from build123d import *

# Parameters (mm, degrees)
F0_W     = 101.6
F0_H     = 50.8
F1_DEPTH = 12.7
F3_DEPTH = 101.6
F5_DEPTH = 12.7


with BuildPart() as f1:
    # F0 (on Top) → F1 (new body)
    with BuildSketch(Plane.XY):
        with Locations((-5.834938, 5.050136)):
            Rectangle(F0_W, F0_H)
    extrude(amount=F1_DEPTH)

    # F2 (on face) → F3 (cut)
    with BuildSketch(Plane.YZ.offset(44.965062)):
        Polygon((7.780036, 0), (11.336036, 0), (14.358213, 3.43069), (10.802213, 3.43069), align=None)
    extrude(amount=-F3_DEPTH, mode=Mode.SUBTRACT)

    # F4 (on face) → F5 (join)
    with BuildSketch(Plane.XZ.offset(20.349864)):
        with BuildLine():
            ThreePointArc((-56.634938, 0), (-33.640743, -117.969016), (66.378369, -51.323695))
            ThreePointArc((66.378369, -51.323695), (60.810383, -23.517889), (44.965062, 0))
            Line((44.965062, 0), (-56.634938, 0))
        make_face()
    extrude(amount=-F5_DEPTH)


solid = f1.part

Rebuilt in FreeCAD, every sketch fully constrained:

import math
import FreeCAD as App
import Part
import Sketcher
Q = App.Units.Quantity

doc = App.newDocument("Part")
body = doc.addObject("PartDesign::Body", "Body")

# Sketch on XY plane
sketch1 = doc.addObject("Sketcher::SketchObject", "Sketch")
body.addObject(sketch1)
sketch1.AttachmentSupport = (doc.XY_Plane, [""])
sketch1.MapMode = "FlatFace"
sketch1.addGeometry([
    Part.LineSegment(App.Vector(-57, 30, 0), App.Vector(-57, -20, 0)),
    Part.LineSegment(App.Vector(-57, -20, 0), App.Vector(45, -20, 0)),
    Part.LineSegment(App.Vector(45, -20, 0), App.Vector(45, 30, 0)),
    Part.LineSegment(App.Vector(45, 30, 0), App.Vector(-57, 30, 0)),
], False)
sketch1.addConstraint([
    Sketcher.Constraint("Coincident", 0, 2, 1, 1),
    Sketcher.Constraint("Coincident", 1, 2, 2, 1),
    Sketcher.Constraint("Coincident", 2, 2, 3, 1),
    Sketcher.Constraint("Coincident", 3, 2, 0, 1),
    Sketcher.Constraint("Vertical", 0),
    Sketcher.Constraint("Horizontal", 1),
    Sketcher.Constraint("Vertical", 2),
    Sketcher.Constraint("Horizontal", 3),
    Sketcher.Constraint("DistanceX", 1, 1, 1, 2, Q("4 in")),
    Sketcher.Constraint("DistanceY", 0, 2, 0, 1, Q("2 in")),
    Sketcher.Constraint("DistanceX", 0, 2, -1, 1, 56.634938),
    Sketcher.Constraint("DistanceY", 0, 2, -1, 1, 20.349864),
])
pad1 = doc.addObject("PartDesign::Pad", "Pad")
body.addObject(pad1)
pad1.Profile = sketch1
pad1.Length = Q("0.5 in")

# Sketch on YZ plane
sketch2 = doc.addObject("Sketcher::SketchObject", "Sketch001")
body.addObject(sketch2)
sketch2.AttachmentSupport = (doc.YZ_Plane, [""])
sketch2.MapMode = "FlatFace"
sketch2.AttachmentOffset = App.Placement(App.Vector(0, 0, 44.965062), App.Rotation())
sketch2.addGeometry([
    Part.LineSegment(App.Vector(7.8, 0, 0), App.Vector(11.3, 0, 0)),
    Part.LineSegment(App.Vector(11.3, 0, 0), App.Vector(14.4, 3.4, 0)),
    Part.LineSegment(App.Vector(14.4, 3.4, 0), App.Vector(10.8, 3.4, 0)),
    Part.LineSegment(App.Vector(10.8, 3.4, 0), App.Vector(7.8, 0, 0)),
], False)
sketch2.addConstraint([
    Sketcher.Constraint("Coincident", 0, 2, 1, 1),
    Sketcher.Constraint("Coincident", 1, 2, 2, 1),
    Sketcher.Constraint("Coincident", 2, 2, 3, 1),
    Sketcher.Constraint("Coincident", 3, 2, 0, 1),
    Sketcher.Constraint("Horizontal", 0),
    Sketcher.Constraint("Horizontal", 2),
    Sketcher.Constraint("PointOnObject", 0, 2, -1),
    Sketcher.Constraint("Parallel", 1, 3),
    Sketcher.Constraint("DistanceX", 0, 1, 0, 2, Q("0.14 in")),
    Sketcher.Constraint("Distance", 1, Q("0.18 in")),
    Sketcher.Constraint("DistanceY", -1, 1, 1, 2, 3.43069),
    Sketcher.Constraint("DistanceX", -1, 1, 0, 2, 11.336036),
])
pocket1 = doc.addObject("PartDesign::Pocket", "Pocket")
body.addObject(pocket1)
pocket1.Profile = sketch2
pocket1.Length = Q("4 in")

# Sketch on XZ plane
sketch3 = doc.addObject("Sketcher::SketchObject", "Sketch002")
body.addObject(sketch3)
sketch3.AttachmentSupport = (doc.XZ_Plane, [""])
sketch3.MapMode = "FlatFace"
sketch3.AttachmentOffset = App.Placement(App.Vector(0, 0, 20.349864), App.Rotation())
sketch3.addGeometry([
    Part.ArcOfCircle(Part.Circle(App.Vector(-6, -51, 0), App.Vector(0, 0, 1), 72), math.radians(135), math.radians(360)),
    Part.ArcOfCircle(Part.Circle(App.Vector(-6, -51, 0), App.Vector(0, 0, 1), 72), math.radians(0), math.radians(45)),
    Part.LineSegment(App.Vector(45, 0, 0), App.Vector(-57, 0, 0)),
], False)
sketch3.addConstraint([
    Sketcher.Constraint("Tangent", 0, 2, 1, 1),
    Sketcher.Constraint("Coincident", 1, 2, 2, 1),
    Sketcher.Constraint("Coincident", 2, 2, 0, 1),
    Sketcher.Constraint("Horizontal", 2),
    Sketcher.Constraint("PointOnObject", 1, 2, -1),
    Sketcher.Constraint("Horizontal", 1, 3, 0, 2),
    Sketcher.Constraint("DistanceX", 2, 2, 2, 1, Q("4 in")),
    Sketcher.Constraint("DistanceX", 0, 3, 1, 2, Q("2 in")),
    Sketcher.Constraint("Radius", 1, 72.213309),
    Sketcher.Constraint("DistanceX", 1, 3, -1, 1, 5.83494),
])
pad2 = doc.addObject("PartDesign::Pad", "Pad001")
body.addObject(pad2)
pad2.Profile = sketch3
pad2.Length = Q("0.5 in")
pad2.Reversed = True

doc.recompute()
